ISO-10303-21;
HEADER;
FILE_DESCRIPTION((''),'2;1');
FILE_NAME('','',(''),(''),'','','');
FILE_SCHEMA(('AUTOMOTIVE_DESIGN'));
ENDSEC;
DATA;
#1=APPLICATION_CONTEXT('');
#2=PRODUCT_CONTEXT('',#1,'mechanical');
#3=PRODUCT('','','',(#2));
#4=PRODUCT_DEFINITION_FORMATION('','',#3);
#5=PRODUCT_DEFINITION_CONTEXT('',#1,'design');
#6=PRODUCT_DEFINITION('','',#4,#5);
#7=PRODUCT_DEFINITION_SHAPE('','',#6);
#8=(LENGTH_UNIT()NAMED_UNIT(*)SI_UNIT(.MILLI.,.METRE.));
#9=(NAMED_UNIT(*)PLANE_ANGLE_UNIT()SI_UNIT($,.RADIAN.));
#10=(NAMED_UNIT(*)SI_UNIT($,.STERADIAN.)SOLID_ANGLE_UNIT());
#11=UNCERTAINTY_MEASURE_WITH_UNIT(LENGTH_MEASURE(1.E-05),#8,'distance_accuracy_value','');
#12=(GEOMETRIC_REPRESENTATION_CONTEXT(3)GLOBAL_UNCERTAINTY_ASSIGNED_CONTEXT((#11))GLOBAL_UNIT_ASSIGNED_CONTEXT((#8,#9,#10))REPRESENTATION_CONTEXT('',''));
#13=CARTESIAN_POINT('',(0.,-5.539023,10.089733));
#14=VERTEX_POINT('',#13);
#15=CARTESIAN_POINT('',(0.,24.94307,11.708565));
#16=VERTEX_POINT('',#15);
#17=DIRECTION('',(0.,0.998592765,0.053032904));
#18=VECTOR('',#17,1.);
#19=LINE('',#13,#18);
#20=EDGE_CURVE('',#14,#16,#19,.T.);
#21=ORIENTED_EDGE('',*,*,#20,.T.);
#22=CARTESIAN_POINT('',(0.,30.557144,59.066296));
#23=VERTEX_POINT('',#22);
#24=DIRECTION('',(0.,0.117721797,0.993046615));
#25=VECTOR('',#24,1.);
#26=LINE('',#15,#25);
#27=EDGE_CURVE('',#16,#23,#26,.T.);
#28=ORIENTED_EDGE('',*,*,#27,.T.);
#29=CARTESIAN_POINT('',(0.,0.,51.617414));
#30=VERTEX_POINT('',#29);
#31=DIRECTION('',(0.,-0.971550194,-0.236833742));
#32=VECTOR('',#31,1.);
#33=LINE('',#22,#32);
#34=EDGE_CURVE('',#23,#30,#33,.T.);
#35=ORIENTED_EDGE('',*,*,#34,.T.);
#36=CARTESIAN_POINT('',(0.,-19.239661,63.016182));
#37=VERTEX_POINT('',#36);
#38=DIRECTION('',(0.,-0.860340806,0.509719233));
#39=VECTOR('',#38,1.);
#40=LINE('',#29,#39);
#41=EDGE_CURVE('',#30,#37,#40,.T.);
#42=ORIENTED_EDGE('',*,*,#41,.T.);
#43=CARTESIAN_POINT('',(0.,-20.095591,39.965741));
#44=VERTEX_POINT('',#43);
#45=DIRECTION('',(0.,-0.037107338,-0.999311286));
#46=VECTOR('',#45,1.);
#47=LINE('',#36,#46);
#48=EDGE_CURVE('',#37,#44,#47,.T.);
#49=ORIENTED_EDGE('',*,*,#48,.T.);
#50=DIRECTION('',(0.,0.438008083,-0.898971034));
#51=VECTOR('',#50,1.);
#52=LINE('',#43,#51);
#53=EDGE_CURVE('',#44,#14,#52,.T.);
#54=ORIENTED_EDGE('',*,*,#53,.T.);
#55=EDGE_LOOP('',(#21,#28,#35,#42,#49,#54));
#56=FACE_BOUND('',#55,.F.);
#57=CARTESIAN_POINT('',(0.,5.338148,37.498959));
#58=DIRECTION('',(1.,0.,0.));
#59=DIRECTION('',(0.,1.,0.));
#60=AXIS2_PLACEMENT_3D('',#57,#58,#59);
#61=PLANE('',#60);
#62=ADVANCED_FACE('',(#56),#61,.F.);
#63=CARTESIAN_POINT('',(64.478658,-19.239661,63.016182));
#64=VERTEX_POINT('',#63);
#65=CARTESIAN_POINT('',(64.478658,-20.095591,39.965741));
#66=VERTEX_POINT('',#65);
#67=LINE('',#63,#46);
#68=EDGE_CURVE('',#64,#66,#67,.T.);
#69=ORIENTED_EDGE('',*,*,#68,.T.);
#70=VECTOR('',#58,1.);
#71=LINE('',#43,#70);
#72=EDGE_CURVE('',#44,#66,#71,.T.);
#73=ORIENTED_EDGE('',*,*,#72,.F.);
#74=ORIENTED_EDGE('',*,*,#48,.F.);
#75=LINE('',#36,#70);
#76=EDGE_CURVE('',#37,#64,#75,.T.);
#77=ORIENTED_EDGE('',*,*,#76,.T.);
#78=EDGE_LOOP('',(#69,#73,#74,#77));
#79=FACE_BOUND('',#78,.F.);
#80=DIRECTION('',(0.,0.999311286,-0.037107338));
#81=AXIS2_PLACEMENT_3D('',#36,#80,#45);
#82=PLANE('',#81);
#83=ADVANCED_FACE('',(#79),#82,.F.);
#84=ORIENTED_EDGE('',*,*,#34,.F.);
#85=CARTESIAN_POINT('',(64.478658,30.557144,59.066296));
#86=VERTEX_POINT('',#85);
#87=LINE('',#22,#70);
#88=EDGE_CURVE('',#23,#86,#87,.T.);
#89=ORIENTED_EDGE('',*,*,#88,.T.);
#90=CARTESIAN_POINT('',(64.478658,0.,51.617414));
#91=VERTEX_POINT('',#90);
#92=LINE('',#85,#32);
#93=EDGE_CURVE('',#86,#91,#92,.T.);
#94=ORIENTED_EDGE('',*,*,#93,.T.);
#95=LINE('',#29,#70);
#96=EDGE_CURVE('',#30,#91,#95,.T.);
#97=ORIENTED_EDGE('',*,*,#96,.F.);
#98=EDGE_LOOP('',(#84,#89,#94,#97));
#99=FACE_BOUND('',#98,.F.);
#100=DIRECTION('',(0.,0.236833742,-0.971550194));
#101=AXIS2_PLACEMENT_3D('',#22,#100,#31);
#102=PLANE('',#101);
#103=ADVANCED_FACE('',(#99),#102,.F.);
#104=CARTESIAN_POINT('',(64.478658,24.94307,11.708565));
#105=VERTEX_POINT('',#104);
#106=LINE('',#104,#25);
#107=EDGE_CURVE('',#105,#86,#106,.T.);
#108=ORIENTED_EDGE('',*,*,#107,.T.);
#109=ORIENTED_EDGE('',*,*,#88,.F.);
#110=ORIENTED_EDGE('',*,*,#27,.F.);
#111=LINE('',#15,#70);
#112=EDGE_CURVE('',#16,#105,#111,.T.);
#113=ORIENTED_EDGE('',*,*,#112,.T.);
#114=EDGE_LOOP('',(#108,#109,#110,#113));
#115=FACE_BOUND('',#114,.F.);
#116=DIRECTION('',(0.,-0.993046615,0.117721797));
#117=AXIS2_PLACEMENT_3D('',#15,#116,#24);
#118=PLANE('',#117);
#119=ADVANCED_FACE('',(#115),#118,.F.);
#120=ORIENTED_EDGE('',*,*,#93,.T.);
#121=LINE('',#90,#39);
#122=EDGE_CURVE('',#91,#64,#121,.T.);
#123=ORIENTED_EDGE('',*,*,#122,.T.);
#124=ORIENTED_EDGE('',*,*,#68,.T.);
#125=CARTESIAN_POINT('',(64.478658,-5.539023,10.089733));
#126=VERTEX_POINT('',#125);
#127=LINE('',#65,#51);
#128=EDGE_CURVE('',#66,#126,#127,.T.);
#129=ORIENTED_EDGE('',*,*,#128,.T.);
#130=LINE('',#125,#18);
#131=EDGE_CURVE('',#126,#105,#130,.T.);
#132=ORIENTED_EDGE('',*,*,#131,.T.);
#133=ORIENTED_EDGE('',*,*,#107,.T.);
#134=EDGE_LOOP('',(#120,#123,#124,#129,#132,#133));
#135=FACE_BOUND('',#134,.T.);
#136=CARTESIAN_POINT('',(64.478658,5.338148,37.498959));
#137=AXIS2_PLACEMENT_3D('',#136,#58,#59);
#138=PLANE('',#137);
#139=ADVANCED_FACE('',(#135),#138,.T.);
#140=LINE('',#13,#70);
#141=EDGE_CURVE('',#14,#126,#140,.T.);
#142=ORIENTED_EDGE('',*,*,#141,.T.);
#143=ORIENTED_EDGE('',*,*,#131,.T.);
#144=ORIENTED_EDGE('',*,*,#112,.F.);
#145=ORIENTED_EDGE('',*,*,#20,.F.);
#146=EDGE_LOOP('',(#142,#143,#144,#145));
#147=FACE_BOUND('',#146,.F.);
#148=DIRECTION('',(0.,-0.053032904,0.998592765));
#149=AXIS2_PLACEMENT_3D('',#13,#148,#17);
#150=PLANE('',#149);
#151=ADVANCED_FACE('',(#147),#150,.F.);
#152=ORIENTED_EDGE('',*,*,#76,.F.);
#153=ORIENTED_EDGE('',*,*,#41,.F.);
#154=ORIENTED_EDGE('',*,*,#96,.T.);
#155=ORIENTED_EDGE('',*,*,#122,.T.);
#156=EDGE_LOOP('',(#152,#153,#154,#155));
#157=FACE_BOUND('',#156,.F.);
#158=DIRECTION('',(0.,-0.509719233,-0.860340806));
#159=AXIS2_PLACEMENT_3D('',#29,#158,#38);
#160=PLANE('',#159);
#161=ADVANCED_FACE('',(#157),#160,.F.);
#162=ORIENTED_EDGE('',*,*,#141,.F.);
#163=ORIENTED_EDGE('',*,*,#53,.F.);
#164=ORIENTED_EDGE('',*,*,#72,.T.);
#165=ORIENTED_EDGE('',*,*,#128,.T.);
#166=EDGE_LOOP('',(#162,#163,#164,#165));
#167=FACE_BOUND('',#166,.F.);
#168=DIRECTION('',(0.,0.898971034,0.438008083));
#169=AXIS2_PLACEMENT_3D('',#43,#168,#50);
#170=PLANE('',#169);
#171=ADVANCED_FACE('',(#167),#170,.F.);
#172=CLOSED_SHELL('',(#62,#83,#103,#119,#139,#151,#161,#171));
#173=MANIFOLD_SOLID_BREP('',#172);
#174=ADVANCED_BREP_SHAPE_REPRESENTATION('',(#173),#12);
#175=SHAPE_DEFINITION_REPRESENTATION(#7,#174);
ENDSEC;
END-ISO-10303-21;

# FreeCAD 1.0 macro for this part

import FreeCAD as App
import Part
import Sketcher

V = App.Vector
Q = App.Units.Quantity

doc = App.newDocument("Part")
params = doc.addObject("Spreadsheet::Sheet", "Params")
for row, (alias, value) in enumerate([
    ("pad1_length", "64.478658 mm"),
], start=1):
    params.set(f"A{row}", alias)
    params.set(f"B{row}", "=" + value)
    params.setAlias(f"B{row}", alias)

body = doc.addObject("PartDesign::Body", "Body")

# Sketch on YZ plane
sketch1 = body.newObject("Sketcher::SketchObject", "Sketch")
sketch1.AttachmentSupport = (doc.getObject("YZ_Plane"), [""])
sketch1.MapMode = "FlatFace"
sketch1.addGeometry([
    Part.LineSegment(V(31, 59, 0), V(0, 52, 0)),  # 0
    Part.LineSegment(V(0, 52, 0), V(-19, 63, 0)),  # 1
    Part.LineSegment(V(-19, 63, 0), V(-20, 40, 0)),  # 2
    Part.LineSegment(V(-20, 40, 0), V(-6, 10, 0)),  # 3
    Part.LineSegment(V(-6, 10, 0), V(25, 12, 0)),  # 4
    Part.LineSegment(V(25, 12, 0), V(31, 59, 0)),  # 5
], False)
sketch1.addConstraint([
    Sketcher.Constraint("Coincident", 0, 2, 1, 1),
    Sketcher.Constraint("Coincident", 1, 2, 2, 1),
    Sketcher.Constraint("Coincident", 2, 2, 3, 1),
    Sketcher.Constraint("Coincident", 3, 2, 4, 1),
    Sketcher.Constraint("Coincident", 4, 2, 5, 1),
    Sketcher.Constraint("Coincident", 5, 2, 0, 1),
    Sketcher.Constraint("PointOnObject", 0, 2, -2),
    Sketcher.Constraint("Angle", 4, Q("3.039988 deg")),
    Sketcher.Constraint("Distance", 3, Q("33.23356 mm")),
    Sketcher.Constraint("Distance", 4, Q("30.525049 mm")),
    Sketcher.Constraint("DistanceX", 1, 2, -1, 1, Q("19.239661 mm")),
    Sketcher.Constraint("DistanceX", 2, 2, -1, 1, Q("20.095591 mm")),
    Sketcher.Constraint("DistanceY", -1, 1, 2, 2, Q("39.965741 mm")),
    Sketcher.Constraint("DistanceX", -1, 1, 4, 2, Q("24.94307 mm")),
    Sketcher.Constraint("DistanceY", 0, 2, 1, 2, Q("11.398768 mm")),
    Sketcher.Constraint("DistanceY", 2, 2, 1, 2, Q("23.050441 mm")),
    Sketcher.Constraint("DistanceY", 4, 2, 5, 2, Q("47.357731 mm")),
    Sketcher.Constraint("Distance", 0, Q("31.451946 mm")),
])
pad1 = body.newObject("PartDesign::Pad", "Pad")
pad1.Profile = sketch1
pad1.setExpression("Length", "Params.pad1_length")

doc.recompute()
